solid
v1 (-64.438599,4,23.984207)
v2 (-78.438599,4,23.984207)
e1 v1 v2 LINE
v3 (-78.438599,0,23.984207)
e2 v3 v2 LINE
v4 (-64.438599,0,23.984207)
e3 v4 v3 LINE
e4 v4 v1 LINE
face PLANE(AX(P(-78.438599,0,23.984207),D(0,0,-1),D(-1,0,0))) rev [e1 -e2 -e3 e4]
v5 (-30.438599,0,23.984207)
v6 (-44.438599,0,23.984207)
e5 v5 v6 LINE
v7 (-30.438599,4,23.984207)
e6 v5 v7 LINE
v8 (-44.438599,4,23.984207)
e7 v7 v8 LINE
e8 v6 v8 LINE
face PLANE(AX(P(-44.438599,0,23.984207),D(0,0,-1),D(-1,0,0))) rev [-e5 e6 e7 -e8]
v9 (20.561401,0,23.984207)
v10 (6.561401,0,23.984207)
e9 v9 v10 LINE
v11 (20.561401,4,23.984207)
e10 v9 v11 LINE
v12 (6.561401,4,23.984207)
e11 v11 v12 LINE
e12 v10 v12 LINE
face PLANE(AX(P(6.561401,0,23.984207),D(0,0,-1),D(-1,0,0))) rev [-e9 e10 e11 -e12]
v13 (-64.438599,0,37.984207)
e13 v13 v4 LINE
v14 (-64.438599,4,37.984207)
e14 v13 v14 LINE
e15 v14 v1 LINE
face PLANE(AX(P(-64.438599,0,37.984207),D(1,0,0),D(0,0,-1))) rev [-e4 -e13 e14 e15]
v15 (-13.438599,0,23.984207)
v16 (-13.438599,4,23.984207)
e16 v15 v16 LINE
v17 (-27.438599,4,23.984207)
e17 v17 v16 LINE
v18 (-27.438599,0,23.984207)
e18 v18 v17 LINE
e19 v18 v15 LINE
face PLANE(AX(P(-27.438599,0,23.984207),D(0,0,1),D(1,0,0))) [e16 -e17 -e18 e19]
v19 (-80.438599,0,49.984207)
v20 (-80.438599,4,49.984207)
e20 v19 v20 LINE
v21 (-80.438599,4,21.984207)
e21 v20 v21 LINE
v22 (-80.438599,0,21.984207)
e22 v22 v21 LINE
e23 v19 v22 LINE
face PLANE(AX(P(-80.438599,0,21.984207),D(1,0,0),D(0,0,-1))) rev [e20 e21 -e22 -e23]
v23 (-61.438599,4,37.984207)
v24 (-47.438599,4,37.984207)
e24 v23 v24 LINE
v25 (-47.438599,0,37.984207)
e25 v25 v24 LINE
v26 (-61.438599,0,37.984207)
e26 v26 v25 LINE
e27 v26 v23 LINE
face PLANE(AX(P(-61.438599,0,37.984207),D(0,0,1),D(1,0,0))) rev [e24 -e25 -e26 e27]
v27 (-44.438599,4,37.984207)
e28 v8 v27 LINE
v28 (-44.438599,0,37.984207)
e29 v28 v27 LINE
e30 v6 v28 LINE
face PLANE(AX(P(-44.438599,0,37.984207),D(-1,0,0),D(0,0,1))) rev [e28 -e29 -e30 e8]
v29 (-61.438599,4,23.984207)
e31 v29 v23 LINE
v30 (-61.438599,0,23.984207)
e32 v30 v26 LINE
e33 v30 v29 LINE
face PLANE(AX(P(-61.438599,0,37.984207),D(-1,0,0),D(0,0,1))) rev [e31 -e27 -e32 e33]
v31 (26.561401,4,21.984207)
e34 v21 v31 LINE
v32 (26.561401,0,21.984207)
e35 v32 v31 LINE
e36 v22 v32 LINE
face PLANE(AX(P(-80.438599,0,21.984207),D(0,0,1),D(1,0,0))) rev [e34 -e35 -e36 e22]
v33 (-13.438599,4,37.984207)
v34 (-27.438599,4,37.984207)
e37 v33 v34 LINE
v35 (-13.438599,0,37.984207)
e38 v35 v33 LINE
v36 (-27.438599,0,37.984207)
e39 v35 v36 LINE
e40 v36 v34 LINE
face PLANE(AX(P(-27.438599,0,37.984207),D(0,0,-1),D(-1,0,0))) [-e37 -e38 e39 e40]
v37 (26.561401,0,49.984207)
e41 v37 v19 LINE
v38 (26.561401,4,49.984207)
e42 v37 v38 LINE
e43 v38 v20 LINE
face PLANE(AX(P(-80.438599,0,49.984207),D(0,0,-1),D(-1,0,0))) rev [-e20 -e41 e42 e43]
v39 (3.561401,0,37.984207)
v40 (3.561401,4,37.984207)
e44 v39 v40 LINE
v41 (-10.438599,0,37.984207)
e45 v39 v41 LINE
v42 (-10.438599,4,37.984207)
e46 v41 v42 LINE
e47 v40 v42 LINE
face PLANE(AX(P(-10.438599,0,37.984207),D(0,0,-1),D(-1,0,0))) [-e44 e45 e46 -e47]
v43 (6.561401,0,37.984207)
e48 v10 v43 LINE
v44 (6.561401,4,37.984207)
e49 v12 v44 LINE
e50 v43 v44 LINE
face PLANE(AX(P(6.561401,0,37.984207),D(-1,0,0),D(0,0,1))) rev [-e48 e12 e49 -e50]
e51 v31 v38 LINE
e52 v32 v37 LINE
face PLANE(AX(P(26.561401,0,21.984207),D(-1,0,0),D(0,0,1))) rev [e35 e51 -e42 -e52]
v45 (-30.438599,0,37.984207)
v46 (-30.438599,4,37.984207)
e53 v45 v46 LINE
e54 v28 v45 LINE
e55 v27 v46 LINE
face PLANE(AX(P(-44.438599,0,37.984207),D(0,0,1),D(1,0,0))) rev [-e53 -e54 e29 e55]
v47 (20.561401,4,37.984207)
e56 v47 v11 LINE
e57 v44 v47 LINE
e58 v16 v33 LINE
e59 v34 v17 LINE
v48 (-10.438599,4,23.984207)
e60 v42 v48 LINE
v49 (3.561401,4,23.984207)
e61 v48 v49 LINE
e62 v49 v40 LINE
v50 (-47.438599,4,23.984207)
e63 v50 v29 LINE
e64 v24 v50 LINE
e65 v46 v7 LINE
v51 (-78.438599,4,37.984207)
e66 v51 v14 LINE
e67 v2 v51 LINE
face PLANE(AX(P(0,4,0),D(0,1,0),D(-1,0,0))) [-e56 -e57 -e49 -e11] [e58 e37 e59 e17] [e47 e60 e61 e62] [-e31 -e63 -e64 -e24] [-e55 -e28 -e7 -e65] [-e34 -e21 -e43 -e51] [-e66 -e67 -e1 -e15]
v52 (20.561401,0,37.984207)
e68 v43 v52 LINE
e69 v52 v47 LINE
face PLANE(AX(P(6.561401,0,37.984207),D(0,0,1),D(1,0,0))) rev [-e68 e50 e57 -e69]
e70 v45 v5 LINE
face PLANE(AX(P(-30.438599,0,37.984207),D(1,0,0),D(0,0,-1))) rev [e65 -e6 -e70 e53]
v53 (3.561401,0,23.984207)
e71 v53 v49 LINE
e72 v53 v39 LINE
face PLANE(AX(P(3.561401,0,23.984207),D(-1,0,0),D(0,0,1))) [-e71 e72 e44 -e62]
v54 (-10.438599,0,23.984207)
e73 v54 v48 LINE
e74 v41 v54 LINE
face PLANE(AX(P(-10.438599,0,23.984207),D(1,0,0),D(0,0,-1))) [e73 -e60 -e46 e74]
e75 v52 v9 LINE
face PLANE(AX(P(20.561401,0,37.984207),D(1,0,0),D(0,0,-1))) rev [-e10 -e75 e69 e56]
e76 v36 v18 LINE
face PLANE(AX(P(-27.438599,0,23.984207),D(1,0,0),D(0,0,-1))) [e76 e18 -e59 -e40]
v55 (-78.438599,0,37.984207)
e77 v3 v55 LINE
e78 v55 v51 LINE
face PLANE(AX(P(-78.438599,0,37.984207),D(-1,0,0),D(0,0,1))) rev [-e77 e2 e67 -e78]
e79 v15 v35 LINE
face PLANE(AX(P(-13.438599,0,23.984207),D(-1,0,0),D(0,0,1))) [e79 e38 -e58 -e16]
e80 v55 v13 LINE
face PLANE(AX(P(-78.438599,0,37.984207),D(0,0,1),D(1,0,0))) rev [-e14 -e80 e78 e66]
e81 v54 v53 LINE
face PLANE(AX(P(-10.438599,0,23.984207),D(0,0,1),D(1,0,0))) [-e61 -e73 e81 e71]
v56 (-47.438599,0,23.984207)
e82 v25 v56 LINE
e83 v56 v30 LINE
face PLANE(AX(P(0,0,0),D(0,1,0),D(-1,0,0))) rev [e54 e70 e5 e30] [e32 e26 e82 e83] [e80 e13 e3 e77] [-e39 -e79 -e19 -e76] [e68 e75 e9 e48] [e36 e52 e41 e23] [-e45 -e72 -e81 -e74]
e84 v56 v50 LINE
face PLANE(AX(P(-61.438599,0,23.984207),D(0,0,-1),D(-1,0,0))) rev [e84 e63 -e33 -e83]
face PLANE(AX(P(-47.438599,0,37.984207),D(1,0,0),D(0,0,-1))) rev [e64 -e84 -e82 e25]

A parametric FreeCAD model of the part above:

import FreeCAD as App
import Part
import Sketcher
from FreeCAD import Vector

doc = App.newDocument("Part")
body = doc.addObject("PartDesign::Body", "Body")

sketch1 = doc.addObject("Sketcher::SketchObject", "Sketch")
body.addObject(sketch1)
sketch1.AttachmentSupport = (doc.XZ_Plane, [""])
sketch1.MapMode = "FlatFace"
sketch1.addGeometry([
    Part.LineSegment(Vector(27, 50, 0), Vector(27, 22, 0)),
    Part.LineSegment(Vector(27, 22, 0), Vector(-80, 22, 0)),
    Part.LineSegment(Vector(-80, 22, 0), Vector(-80, 50, 0)),
    Part.LineSegment(Vector(-80, 50, 0), Vector(27, 50, 0)),
    Part.LineSegment(Vector(-78, 38, 0), Vector(-78, 24, 0)),
    Part.LineSegment(Vector(-78, 24, 0), Vector(-64, 24, 0)),
    Part.LineSegment(Vector(-64, 24, 0), Vector(-64, 38, 0)),
    Part.LineSegment(Vector(-64, 38, 0), Vector(-78, 38, 0)),
    Part.LineSegment(Vector(-61, 38, 0), Vector(-61, 24, 0)),
    Part.LineSegment(Vector(-61, 24, 0), Vector(-47, 24, 0)),
    Part.LineSegment(Vector(-47, 24, 0), Vector(-47, 38, 0)),
    Part.LineSegment(Vector(-47, 38, 0), Vector(-61, 38, 0)),
    Part.LineSegment(Vector(-44, 24, 0), Vector(-30, 24, 0)),
    Part.LineSegment(Vector(-30, 24, 0), Vector(-30, 38, 0)),
    Part.LineSegment(Vector(-30, 38, 0), Vector(-44, 38, 0)),
    Part.LineSegment(Vector(-44, 38, 0), Vector(-44, 24, 0)),
    Part.LineSegment(Vector(-27, 24, 0), Vector(-13, 24, 0)),
    Part.LineSegment(Vector(-13, 24, 0), Vector(-13, 38, 0)),
    Part.LineSegment(Vector(-13, 38, 0), Vector(-27, 38, 0)),
    Part.LineSegment(Vector(-27, 38, 0), Vector(-27, 24, 0)),
    Part.LineSegment(Vector(-10, 38, 0), Vector(-10, 24, 0)),
    Part.LineSegment(Vector(-10, 24, 0), Vector(4, 24, 0)),
    Part.LineSegment(Vector(4, 24, 0), Vector(4, 38, 0)),
    Part.LineSegment(Vector(4, 38, 0), Vector(-10, 38, 0)),
    Part.LineSegment(Vector(21, 38, 0), Vector(7, 38, 0)),
    Part.LineSegment(Vector(7, 38, 0), Vector(7, 24, 0)),
    Part.LineSegment(Vector(7, 24, 0), Vector(21, 24, 0)),
    Part.LineSegment(Vector(21, 24, 0), Vector(21, 38, 0)),
], False)
sketch1.addConstraint([
    Sketcher.Constraint("Coincident", 0, 2, 1, 1),
    Sketcher.Constraint("Coincident", 1, 2, 2, 1),
    Sketcher.Constraint("Coincident", 2, 2, 3, 1),
    Sketcher.Constraint("Coincident", 3, 2, 0, 1),
    Sketcher.Constraint("Coincident", 4, 2, 5, 1),
    Sketcher.Constraint("Coincident", 5, 2, 6, 1),
    Sketcher.Constraint("Coincident", 6, 2, 7, 1),
    Sketcher.Constraint("Coincident", 7, 2, 4, 1),
    Sketcher.Constraint("Coincident", 8, 2, 9, 1),
    Sketcher.Constraint("Coincident", 9, 2, 10, 1),
    Sketcher.Constraint("Coincident", 10, 2, 11, 1),
    Sketcher.Constraint("Coincident", 11, 2, 8, 1),
    Sketcher.Constraint("Coincident", 12, 2, 13, 1),
    Sketcher.Constraint("Coincident", 13, 2, 14, 1),
    Sketcher.Constraint("Coincident", 14, 2, 15, 1),
    Sketcher.Constraint("Coincident", 15, 2, 12, 1),
    Sketcher.Constraint("Coincident", 16, 2, 17, 1),
    Sketcher.Constraint("Coincident", 17, 2, 18, 1),
    Sketcher.Constraint("Coincident", 18, 2, 19, 1),
    Sketcher.Constraint("Coincident", 19, 2, 16, 1),
    Sketcher.Constraint("Coincident", 20, 2, 21, 1),
    Sketcher.Constraint("Coincident", 21, 2, 22, 1),
    Sketcher.Constraint("Coincident", 22, 2, 23, 1),
    Sketcher.Constraint("Coincident", 23, 2, 20, 1),
    Sketcher.Constraint("Coincident", 24, 2, 25, 1),
    Sketcher.Constraint("Coincident", 25, 2, 26, 1),
    Sketcher.Constraint("Coincident", 26, 2, 27, 1),
    Sketcher.Constraint("Coincident", 27, 2, 24, 1),
    Sketcher.Constraint("Vertical", 0),
    Sketcher.Constraint("Horizontal", 1),
    Sketcher.Constraint("Vertical", 2),
    Sketcher.Constraint("Horizontal", 3),
    Sketcher.Constraint("Vertical", 4),
    Sketcher.Constraint("Horizontal", 5),
    Sketcher.Constraint("Vertical", 6),
    Sketcher.Constraint("Horizontal", 7),
    Sketcher.Constraint("Vertical", 8),
    Sketcher.Constraint("Horizontal", 9),
    Sketcher.Constraint("Vertical", 10),
    Sketcher.Constraint("Horizontal", 11),
    Sketcher.Constraint("Horizontal", 12),
    Sketcher.Constraint("Vertical", 13),
    Sketcher.Constraint("Horizontal", 14),
    Sketcher.Constraint("Vertical", 15),
    Sketcher.Constraint("Horizontal", 16),
    Sketcher.Constraint("Vertical", 17),
    Sketcher.Constraint("Horizontal", 18),
    Sketcher.Constraint("Vertical", 19),
    Sketcher.Constraint("Vertical", 20),
    Sketcher.Constraint("Horizontal", 21),
    Sketcher.Constraint("Vertical", 22),
    Sketcher.Constraint("Horizontal", 23),
    Sketcher.Constraint("Horizontal", 24),
    Sketcher.Constraint("Vertical", 25),
    Sketcher.Constraint("Horizontal", 26),
    Sketcher.Constraint("Vertical", 27),
    Sketcher.Constraint("Horizontal", 5, 2, 8, 2),
    Sketcher.Constraint("Horizontal", 7, 2, 10, 2),
    Sketcher.Constraint("Horizontal", 9, 2, 12, 2),
    Sketcher.Constraint("Horizontal", 11, 2, 13, 2),
    Sketcher.Constraint("Horizontal", 15, 2, 16, 2),
    Sketcher.Constraint("Horizontal", 14, 2, 17, 2),
    Sketcher.Constraint("Horizontal", 19, 2, 20, 2),
    Sketcher.Constraint("Horizontal", 18, 2, 22, 2),
    Sketcher.Constraint("Horizontal", 23, 2, 24, 2),
    Sketcher.Constraint("Horizontal", 21, 2, 25, 2),
    Sketcher.Constraint("Equal", 7, 9),
    Sketcher.Constraint("Equal", 11, 12),
    Sketcher.Constraint("Equal", 14, 16),
    Sketcher.Constraint("Equal", 18, 21),
    Sketcher.Constraint("Equal", 23, 24),
    Sketcher.Constraint("Equal", 26, 4),
    Sketcher.Constraint("DistanceX", 1, 2, 1, 1, 107.0),
    Sketcher.Constraint("DistanceX", 5, 1, 5, 2, 14.0),
    Sketcher.Constraint("DistanceY", 0, 2, 0, 1, 28.0),
    Sketcher.Constraint("DistanceX", 1, 2, 4, 2, 2.0),
    Sketcher.Constraint("DistanceY", 1, 2, 4, 2, 2.0),
    Sketcher.Constraint("DistanceX", 5, 2, 8, 2, 3.0),
    Sketcher.Constraint("DistanceX", 9, 2, 12, 2, 17.0),
    Sketcher.Constraint("DistanceX", 12, 2, 16, 2, 17.0),
    Sketcher.Constraint("DistanceX", 16, 2, 20, 2, 3.0),
    Sketcher.Constraint("DistanceX", 22, 2, 24, 2, 3.0),
    Sketcher.Constraint("DistanceX", -1, 1, 0, 2, 26.561401),
    Sketcher.Constraint("DistanceY", -1, 1, 0, 2, 21.984207),
])
pad1 = doc.addObject("PartDesign::Pad", "Pad")
body.addObject(pad1)
pad1.Profile = sketch1
pad1.Length = 4
pad1.Reversed = True

doc.recompute()
